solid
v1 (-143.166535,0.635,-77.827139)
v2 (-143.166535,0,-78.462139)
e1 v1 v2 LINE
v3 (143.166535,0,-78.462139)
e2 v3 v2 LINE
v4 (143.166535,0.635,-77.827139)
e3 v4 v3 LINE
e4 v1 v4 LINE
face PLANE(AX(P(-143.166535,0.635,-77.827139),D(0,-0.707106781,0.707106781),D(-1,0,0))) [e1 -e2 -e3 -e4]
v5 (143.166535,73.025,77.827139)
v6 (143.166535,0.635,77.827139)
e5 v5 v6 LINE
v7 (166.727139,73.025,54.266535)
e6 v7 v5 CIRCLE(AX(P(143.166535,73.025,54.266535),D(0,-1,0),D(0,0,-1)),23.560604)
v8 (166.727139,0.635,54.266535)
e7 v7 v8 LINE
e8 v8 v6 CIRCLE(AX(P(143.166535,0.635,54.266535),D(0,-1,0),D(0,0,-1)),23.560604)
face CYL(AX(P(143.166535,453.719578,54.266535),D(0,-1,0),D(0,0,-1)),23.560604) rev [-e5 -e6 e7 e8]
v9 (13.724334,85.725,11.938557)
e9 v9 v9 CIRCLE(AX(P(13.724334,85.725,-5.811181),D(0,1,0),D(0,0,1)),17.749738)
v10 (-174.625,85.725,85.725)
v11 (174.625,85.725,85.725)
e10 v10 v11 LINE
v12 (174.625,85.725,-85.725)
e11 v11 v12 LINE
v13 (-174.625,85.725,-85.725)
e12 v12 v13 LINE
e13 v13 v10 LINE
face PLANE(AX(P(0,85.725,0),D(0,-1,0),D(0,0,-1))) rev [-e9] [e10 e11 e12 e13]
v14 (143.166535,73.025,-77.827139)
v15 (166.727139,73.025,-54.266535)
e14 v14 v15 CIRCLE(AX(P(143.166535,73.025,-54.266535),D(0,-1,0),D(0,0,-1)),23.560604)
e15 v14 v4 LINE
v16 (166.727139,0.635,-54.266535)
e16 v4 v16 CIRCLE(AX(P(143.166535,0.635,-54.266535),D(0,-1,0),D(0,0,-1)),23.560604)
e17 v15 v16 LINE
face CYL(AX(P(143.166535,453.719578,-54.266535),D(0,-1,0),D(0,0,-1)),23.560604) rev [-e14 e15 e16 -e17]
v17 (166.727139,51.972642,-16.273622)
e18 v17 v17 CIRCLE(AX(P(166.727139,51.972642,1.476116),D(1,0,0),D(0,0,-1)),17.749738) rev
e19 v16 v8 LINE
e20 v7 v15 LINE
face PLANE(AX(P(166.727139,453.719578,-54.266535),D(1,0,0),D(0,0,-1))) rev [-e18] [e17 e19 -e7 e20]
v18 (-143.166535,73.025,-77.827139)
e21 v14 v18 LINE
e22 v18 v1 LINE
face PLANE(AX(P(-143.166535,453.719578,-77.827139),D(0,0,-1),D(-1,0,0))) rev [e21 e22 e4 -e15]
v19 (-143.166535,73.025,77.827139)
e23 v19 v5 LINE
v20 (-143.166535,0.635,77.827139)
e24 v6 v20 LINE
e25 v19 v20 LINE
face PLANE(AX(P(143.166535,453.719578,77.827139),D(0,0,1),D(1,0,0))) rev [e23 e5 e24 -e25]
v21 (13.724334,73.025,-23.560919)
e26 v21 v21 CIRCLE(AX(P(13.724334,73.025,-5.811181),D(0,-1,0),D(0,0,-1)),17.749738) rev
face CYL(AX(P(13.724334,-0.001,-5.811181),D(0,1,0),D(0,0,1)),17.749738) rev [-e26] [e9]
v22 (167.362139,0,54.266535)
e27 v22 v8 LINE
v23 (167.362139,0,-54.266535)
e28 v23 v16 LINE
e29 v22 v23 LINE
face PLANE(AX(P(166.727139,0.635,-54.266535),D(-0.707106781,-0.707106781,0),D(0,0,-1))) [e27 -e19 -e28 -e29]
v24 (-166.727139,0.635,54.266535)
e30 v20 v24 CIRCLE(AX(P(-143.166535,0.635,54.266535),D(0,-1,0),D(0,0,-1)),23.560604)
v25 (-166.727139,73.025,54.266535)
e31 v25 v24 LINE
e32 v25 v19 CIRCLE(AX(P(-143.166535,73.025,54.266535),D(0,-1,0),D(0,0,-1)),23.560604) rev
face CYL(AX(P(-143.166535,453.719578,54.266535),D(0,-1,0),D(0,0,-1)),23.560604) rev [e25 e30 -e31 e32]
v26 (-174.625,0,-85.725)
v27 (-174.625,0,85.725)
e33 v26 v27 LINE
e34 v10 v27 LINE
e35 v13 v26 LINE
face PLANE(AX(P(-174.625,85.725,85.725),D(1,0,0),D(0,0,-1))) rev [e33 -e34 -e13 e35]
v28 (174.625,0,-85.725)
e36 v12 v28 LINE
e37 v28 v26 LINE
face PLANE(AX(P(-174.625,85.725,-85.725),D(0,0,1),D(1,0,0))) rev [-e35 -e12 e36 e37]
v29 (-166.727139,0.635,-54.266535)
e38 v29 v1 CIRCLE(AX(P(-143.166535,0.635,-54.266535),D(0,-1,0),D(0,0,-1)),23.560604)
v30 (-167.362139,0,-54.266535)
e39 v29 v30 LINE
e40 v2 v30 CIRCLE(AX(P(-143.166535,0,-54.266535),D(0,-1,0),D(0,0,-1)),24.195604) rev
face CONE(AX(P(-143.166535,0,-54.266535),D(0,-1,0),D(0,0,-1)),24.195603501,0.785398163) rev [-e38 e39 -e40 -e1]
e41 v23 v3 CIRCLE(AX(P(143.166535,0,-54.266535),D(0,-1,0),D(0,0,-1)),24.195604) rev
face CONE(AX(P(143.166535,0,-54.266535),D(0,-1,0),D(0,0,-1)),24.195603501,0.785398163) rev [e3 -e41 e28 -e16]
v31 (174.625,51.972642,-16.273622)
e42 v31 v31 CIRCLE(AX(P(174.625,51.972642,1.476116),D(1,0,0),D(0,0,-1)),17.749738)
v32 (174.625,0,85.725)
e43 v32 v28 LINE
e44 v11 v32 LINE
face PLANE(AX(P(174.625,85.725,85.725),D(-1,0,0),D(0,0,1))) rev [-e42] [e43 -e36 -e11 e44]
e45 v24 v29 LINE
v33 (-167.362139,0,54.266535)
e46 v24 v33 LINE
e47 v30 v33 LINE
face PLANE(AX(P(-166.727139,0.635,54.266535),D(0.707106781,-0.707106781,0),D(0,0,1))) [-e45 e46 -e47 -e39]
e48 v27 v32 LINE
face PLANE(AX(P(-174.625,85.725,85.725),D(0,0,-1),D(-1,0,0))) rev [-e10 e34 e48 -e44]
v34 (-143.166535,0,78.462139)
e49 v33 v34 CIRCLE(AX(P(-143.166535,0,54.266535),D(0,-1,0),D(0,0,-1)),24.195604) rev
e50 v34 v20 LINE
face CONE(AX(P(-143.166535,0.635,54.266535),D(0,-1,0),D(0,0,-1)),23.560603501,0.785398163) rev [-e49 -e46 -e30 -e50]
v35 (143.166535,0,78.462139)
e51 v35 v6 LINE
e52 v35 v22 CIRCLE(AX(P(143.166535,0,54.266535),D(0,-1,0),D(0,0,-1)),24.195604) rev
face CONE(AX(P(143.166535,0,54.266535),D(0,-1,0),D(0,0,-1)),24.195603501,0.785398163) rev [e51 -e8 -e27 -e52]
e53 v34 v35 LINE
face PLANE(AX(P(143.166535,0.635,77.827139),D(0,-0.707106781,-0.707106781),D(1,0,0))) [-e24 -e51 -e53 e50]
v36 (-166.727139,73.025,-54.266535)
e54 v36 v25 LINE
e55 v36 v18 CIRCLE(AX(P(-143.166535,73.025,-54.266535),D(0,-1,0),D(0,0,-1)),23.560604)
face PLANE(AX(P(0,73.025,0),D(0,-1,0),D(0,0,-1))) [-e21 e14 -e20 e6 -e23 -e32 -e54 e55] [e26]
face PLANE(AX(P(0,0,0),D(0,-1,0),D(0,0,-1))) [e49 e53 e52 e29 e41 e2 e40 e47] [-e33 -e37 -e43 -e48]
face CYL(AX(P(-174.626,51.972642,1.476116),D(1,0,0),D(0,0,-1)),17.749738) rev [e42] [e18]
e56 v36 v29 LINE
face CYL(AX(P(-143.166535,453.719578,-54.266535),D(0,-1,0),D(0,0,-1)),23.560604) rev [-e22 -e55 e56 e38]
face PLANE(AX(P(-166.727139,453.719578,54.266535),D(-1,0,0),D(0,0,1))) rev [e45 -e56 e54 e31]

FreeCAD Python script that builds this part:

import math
import FreeCAD as App
import Part
import Sketcher
from FreeCAD import Vector
Q = App.Units.Quantity


def edges_at(feature, points):
    """Names of the edges that pass closest to the given points."""
    edges = feature.Shape.Edges
    near = lambda p: min(range(len(edges)), key=lambda i: edges[i].distToShape(Part.Vertex(*p))[0])
    return sorted({f"Edge{near(p) + 1}" for p in points})

doc = App.newDocument("Part")
body = doc.addObject("PartDesign::Body", "Body")

# Sketch on XZ plane
sketch1 = body.newObject("Sketcher::SketchObject", "Sketch")
sketch1.AttachmentSupport = (doc.getObject("XZ_Plane"), [""])
sketch1.MapMode = "FlatFace"
sketch1.addGeometry([
    Part.LineSegment(Vector(-175, -86, 0), Vector(-175, 86, 0)),
    Part.LineSegment(Vector(-175, 86, 0), Vector(175, 86, 0)),
    Part.LineSegment(Vector(175, 86, 0), Vector(175, -86, 0)),
    Part.LineSegment(Vector(175, -86, 0), Vector(-175, -86, 0)),
], False)
sketch1.addConstraint([
    Sketcher.Constraint("Coincident", 0, 2, 1, 1),
    Sketcher.Constraint("Coincident", 1, 2, 2, 1),
    Sketcher.Constraint("Coincident", 2, 2, 3, 1),
    Sketcher.Constraint("Coincident", 3, 2, 0, 1),
    Sketcher.Constraint("Vertical", 0),
    Sketcher.Constraint("Horizontal", 1),
    Sketcher.Constraint("Vertical", 2),
    Sketcher.Constraint("Horizontal", 3),
    Sketcher.Constraint("Symmetric", 0, 2, 2, 2, -1, 1),
    Sketcher.Constraint("DistanceX", 1, 1, 1, 2, Q("13.75 in")),
    Sketcher.Constraint("DistanceY", 0, 1, 0, 2, Q("6.75 in")),
])
pad1 = body.newObject("PartDesign::Pad", "Pad")
pad1.Profile = sketch1
pad1.Length = Q("3.375 in")
pad1.Reversed = True

# Sketch on XZ plane
sketch2 = body.newObject("Sketcher::SketchObject", "Sketch001")
sketch2.AttachmentSupport = (doc.getObject("XZ_Plane"), [""])
sketch2.MapMode = "FlatFace"
sketch2.addGeometry([
    Part.LineSegment(Vector(143, 78, 0), Vector(-143, 78, 0)),  # 0
    Part.ArcOfCircle(Part.Circle(Vector(-143, 54, 0), Vector(0, 0, 1), 24), math.radians(90), math.radians(180)),  # 1
    Part.LineSegment(Vector(-167, 54, 0), Vector(-167, -54, 0)),  # 2
    Part.ArcOfCircle(Part.Circle(Vector(-143, -54, 0), Vector(0, 0, 1), 24), math.radians(180), math.radians(270)),  # 3
    Part.LineSegment(Vector(-143, -78, 0), Vector(143, -78, 0)),  # 4
    Part.ArcOfCircle(Part.Circle(Vector(143, -54, 0), Vector(0, 0, 1), 24), math.radians(-90), math.radians(0)),  # 5
    Part.LineSegment(Vector(167, -54, 0), Vector(167, 54, 0)),  # 6
    Part.ArcOfCircle(Part.Circle(Vector(143, 54, 0), Vector(0, 0, 1), 24), math.radians(0), math.radians(90)),  # 7
], False)
sketch2.addConstraint([
    Sketcher.Constraint("Tangent", 0, 2, 1, 1),
    Sketcher.Constraint("Tangent", 1, 2, 2, 1),
    Sketcher.Constraint("Tangent", 2, 2, 3, 1),
    Sketcher.Constraint("Tangent", 3, 2, 4, 1),
    Sketcher.Constraint("Tangent", 4, 2, 5, 1),
    Sketcher.Constraint("Tangent", 5, 2, 6, 1),
    Sketcher.Constraint("Tangent", 6, 2, 7, 1),
    Sketcher.Constraint("Tangent", 7, 2, 0, 1),
    Sketcher.Constraint("Horizontal", 0),
    Sketcher.Constraint("Vertical", 2),
    Sketcher.Constraint("Horizontal", 4),
    Sketcher.Constraint("Vertical", 6),
    Sketcher.Constraint("Equal", 1, 3),
    Sketcher.Constraint("Equal", 3, 5),
    Sketcher.Constraint("Equal", 5, 7),
    Sketcher.Constraint("Symmetric", 1, 3, 5, 3, -1, 1),
    Sketcher.Constraint("Radius", 1, 23.560603),
    Sketcher.Constraint("DistanceX", 0, 2, 0, 1, 286.333071),
    Sketcher.Constraint("DistanceY", 2, 2, 2, 1, 108.533071),
])
pocket1 = body.newObject("PartDesign::Pocket", "Pocket")
pocket1.Profile = sketch2
pocket1.Length = Q("2.875 in")

# Sketch on XZ plane
sketch3 = body.newObject("Sketcher::SketchObject", "Sketch002")
sketch3.AttachmentSupport = (doc.getObject("XZ_Plane"), [""])
sketch3.MapMode = "FlatFace"
sketch3.AttachmentOffset = App.Placement(Vector(0, 0, -3.375 * 25.4), App.Rotation())
sketch3.addGeometry(Part.Circle(Vector(14, -6, 0), Vector(0, 0, 1), 18), False)
sketch3.addConstraint([
    Sketcher.Constraint("Diameter", 0, 35.499476),
    Sketcher.Constraint("DistanceY", 0, 3, -1, 1, 5.811181),
    Sketcher.Constraint("DistanceX", -1, 1, 0, 3, 13.724334),
])
pocket2 = body.newObject("PartDesign::Pocket", "Pocket001")
pocket2.Profile = sketch3
pocket2.Type = "UpToFirst"
pocket2.Reversed = True

# Sketch on YZ plane
sketch4 = body.newObject("Sketcher::SketchObject", "Sketch003")
sketch4.AttachmentSupport = (doc.getObject("YZ_Plane"), [""])
sketch4.MapMode = "FlatFace"
sketch4.AttachmentOffset = App.Placement(Vector(0, 0, 6.875 * 25.4), App.Rotation())
sketch4.addGeometry(Part.Circle(Vector(52, 1, 0), Vector(0, 0, 1), 18), False)
sketch4.addConstraint([
    Sketcher.Constraint("Diameter", 0, 35.499476),
    Sketcher.Constraint("DistanceX", -1, 1, 0, 3, 51.972642),
    Sketcher.Constraint("DistanceY", -1, 1, 0, 3, 1.476116),
])
pocket3 = body.newObject("PartDesign::Pocket", "Pocket002")
pocket3.Profile = sketch4
pocket3.Type = "UpToFirst"
doc.recompute()

chamfer = body.newObject("PartDesign::Chamfer", "Chamfer")
chamfer.Base = (pocket3, edges_at(pocket3, [
    (159.826, 0, 70.926),
    (159.826, 0, -70.926),
    (-159.826, 0, -70.926),
    (0, 0, 77.827),
    (-159.826, 0, 70.926),
    (-166.727, 0, 0),
    (0, 0, -77.827),
    (166.727, 0, 0),
]))
chamfer.Size = Q("0.025 in")

doc.recompute()
